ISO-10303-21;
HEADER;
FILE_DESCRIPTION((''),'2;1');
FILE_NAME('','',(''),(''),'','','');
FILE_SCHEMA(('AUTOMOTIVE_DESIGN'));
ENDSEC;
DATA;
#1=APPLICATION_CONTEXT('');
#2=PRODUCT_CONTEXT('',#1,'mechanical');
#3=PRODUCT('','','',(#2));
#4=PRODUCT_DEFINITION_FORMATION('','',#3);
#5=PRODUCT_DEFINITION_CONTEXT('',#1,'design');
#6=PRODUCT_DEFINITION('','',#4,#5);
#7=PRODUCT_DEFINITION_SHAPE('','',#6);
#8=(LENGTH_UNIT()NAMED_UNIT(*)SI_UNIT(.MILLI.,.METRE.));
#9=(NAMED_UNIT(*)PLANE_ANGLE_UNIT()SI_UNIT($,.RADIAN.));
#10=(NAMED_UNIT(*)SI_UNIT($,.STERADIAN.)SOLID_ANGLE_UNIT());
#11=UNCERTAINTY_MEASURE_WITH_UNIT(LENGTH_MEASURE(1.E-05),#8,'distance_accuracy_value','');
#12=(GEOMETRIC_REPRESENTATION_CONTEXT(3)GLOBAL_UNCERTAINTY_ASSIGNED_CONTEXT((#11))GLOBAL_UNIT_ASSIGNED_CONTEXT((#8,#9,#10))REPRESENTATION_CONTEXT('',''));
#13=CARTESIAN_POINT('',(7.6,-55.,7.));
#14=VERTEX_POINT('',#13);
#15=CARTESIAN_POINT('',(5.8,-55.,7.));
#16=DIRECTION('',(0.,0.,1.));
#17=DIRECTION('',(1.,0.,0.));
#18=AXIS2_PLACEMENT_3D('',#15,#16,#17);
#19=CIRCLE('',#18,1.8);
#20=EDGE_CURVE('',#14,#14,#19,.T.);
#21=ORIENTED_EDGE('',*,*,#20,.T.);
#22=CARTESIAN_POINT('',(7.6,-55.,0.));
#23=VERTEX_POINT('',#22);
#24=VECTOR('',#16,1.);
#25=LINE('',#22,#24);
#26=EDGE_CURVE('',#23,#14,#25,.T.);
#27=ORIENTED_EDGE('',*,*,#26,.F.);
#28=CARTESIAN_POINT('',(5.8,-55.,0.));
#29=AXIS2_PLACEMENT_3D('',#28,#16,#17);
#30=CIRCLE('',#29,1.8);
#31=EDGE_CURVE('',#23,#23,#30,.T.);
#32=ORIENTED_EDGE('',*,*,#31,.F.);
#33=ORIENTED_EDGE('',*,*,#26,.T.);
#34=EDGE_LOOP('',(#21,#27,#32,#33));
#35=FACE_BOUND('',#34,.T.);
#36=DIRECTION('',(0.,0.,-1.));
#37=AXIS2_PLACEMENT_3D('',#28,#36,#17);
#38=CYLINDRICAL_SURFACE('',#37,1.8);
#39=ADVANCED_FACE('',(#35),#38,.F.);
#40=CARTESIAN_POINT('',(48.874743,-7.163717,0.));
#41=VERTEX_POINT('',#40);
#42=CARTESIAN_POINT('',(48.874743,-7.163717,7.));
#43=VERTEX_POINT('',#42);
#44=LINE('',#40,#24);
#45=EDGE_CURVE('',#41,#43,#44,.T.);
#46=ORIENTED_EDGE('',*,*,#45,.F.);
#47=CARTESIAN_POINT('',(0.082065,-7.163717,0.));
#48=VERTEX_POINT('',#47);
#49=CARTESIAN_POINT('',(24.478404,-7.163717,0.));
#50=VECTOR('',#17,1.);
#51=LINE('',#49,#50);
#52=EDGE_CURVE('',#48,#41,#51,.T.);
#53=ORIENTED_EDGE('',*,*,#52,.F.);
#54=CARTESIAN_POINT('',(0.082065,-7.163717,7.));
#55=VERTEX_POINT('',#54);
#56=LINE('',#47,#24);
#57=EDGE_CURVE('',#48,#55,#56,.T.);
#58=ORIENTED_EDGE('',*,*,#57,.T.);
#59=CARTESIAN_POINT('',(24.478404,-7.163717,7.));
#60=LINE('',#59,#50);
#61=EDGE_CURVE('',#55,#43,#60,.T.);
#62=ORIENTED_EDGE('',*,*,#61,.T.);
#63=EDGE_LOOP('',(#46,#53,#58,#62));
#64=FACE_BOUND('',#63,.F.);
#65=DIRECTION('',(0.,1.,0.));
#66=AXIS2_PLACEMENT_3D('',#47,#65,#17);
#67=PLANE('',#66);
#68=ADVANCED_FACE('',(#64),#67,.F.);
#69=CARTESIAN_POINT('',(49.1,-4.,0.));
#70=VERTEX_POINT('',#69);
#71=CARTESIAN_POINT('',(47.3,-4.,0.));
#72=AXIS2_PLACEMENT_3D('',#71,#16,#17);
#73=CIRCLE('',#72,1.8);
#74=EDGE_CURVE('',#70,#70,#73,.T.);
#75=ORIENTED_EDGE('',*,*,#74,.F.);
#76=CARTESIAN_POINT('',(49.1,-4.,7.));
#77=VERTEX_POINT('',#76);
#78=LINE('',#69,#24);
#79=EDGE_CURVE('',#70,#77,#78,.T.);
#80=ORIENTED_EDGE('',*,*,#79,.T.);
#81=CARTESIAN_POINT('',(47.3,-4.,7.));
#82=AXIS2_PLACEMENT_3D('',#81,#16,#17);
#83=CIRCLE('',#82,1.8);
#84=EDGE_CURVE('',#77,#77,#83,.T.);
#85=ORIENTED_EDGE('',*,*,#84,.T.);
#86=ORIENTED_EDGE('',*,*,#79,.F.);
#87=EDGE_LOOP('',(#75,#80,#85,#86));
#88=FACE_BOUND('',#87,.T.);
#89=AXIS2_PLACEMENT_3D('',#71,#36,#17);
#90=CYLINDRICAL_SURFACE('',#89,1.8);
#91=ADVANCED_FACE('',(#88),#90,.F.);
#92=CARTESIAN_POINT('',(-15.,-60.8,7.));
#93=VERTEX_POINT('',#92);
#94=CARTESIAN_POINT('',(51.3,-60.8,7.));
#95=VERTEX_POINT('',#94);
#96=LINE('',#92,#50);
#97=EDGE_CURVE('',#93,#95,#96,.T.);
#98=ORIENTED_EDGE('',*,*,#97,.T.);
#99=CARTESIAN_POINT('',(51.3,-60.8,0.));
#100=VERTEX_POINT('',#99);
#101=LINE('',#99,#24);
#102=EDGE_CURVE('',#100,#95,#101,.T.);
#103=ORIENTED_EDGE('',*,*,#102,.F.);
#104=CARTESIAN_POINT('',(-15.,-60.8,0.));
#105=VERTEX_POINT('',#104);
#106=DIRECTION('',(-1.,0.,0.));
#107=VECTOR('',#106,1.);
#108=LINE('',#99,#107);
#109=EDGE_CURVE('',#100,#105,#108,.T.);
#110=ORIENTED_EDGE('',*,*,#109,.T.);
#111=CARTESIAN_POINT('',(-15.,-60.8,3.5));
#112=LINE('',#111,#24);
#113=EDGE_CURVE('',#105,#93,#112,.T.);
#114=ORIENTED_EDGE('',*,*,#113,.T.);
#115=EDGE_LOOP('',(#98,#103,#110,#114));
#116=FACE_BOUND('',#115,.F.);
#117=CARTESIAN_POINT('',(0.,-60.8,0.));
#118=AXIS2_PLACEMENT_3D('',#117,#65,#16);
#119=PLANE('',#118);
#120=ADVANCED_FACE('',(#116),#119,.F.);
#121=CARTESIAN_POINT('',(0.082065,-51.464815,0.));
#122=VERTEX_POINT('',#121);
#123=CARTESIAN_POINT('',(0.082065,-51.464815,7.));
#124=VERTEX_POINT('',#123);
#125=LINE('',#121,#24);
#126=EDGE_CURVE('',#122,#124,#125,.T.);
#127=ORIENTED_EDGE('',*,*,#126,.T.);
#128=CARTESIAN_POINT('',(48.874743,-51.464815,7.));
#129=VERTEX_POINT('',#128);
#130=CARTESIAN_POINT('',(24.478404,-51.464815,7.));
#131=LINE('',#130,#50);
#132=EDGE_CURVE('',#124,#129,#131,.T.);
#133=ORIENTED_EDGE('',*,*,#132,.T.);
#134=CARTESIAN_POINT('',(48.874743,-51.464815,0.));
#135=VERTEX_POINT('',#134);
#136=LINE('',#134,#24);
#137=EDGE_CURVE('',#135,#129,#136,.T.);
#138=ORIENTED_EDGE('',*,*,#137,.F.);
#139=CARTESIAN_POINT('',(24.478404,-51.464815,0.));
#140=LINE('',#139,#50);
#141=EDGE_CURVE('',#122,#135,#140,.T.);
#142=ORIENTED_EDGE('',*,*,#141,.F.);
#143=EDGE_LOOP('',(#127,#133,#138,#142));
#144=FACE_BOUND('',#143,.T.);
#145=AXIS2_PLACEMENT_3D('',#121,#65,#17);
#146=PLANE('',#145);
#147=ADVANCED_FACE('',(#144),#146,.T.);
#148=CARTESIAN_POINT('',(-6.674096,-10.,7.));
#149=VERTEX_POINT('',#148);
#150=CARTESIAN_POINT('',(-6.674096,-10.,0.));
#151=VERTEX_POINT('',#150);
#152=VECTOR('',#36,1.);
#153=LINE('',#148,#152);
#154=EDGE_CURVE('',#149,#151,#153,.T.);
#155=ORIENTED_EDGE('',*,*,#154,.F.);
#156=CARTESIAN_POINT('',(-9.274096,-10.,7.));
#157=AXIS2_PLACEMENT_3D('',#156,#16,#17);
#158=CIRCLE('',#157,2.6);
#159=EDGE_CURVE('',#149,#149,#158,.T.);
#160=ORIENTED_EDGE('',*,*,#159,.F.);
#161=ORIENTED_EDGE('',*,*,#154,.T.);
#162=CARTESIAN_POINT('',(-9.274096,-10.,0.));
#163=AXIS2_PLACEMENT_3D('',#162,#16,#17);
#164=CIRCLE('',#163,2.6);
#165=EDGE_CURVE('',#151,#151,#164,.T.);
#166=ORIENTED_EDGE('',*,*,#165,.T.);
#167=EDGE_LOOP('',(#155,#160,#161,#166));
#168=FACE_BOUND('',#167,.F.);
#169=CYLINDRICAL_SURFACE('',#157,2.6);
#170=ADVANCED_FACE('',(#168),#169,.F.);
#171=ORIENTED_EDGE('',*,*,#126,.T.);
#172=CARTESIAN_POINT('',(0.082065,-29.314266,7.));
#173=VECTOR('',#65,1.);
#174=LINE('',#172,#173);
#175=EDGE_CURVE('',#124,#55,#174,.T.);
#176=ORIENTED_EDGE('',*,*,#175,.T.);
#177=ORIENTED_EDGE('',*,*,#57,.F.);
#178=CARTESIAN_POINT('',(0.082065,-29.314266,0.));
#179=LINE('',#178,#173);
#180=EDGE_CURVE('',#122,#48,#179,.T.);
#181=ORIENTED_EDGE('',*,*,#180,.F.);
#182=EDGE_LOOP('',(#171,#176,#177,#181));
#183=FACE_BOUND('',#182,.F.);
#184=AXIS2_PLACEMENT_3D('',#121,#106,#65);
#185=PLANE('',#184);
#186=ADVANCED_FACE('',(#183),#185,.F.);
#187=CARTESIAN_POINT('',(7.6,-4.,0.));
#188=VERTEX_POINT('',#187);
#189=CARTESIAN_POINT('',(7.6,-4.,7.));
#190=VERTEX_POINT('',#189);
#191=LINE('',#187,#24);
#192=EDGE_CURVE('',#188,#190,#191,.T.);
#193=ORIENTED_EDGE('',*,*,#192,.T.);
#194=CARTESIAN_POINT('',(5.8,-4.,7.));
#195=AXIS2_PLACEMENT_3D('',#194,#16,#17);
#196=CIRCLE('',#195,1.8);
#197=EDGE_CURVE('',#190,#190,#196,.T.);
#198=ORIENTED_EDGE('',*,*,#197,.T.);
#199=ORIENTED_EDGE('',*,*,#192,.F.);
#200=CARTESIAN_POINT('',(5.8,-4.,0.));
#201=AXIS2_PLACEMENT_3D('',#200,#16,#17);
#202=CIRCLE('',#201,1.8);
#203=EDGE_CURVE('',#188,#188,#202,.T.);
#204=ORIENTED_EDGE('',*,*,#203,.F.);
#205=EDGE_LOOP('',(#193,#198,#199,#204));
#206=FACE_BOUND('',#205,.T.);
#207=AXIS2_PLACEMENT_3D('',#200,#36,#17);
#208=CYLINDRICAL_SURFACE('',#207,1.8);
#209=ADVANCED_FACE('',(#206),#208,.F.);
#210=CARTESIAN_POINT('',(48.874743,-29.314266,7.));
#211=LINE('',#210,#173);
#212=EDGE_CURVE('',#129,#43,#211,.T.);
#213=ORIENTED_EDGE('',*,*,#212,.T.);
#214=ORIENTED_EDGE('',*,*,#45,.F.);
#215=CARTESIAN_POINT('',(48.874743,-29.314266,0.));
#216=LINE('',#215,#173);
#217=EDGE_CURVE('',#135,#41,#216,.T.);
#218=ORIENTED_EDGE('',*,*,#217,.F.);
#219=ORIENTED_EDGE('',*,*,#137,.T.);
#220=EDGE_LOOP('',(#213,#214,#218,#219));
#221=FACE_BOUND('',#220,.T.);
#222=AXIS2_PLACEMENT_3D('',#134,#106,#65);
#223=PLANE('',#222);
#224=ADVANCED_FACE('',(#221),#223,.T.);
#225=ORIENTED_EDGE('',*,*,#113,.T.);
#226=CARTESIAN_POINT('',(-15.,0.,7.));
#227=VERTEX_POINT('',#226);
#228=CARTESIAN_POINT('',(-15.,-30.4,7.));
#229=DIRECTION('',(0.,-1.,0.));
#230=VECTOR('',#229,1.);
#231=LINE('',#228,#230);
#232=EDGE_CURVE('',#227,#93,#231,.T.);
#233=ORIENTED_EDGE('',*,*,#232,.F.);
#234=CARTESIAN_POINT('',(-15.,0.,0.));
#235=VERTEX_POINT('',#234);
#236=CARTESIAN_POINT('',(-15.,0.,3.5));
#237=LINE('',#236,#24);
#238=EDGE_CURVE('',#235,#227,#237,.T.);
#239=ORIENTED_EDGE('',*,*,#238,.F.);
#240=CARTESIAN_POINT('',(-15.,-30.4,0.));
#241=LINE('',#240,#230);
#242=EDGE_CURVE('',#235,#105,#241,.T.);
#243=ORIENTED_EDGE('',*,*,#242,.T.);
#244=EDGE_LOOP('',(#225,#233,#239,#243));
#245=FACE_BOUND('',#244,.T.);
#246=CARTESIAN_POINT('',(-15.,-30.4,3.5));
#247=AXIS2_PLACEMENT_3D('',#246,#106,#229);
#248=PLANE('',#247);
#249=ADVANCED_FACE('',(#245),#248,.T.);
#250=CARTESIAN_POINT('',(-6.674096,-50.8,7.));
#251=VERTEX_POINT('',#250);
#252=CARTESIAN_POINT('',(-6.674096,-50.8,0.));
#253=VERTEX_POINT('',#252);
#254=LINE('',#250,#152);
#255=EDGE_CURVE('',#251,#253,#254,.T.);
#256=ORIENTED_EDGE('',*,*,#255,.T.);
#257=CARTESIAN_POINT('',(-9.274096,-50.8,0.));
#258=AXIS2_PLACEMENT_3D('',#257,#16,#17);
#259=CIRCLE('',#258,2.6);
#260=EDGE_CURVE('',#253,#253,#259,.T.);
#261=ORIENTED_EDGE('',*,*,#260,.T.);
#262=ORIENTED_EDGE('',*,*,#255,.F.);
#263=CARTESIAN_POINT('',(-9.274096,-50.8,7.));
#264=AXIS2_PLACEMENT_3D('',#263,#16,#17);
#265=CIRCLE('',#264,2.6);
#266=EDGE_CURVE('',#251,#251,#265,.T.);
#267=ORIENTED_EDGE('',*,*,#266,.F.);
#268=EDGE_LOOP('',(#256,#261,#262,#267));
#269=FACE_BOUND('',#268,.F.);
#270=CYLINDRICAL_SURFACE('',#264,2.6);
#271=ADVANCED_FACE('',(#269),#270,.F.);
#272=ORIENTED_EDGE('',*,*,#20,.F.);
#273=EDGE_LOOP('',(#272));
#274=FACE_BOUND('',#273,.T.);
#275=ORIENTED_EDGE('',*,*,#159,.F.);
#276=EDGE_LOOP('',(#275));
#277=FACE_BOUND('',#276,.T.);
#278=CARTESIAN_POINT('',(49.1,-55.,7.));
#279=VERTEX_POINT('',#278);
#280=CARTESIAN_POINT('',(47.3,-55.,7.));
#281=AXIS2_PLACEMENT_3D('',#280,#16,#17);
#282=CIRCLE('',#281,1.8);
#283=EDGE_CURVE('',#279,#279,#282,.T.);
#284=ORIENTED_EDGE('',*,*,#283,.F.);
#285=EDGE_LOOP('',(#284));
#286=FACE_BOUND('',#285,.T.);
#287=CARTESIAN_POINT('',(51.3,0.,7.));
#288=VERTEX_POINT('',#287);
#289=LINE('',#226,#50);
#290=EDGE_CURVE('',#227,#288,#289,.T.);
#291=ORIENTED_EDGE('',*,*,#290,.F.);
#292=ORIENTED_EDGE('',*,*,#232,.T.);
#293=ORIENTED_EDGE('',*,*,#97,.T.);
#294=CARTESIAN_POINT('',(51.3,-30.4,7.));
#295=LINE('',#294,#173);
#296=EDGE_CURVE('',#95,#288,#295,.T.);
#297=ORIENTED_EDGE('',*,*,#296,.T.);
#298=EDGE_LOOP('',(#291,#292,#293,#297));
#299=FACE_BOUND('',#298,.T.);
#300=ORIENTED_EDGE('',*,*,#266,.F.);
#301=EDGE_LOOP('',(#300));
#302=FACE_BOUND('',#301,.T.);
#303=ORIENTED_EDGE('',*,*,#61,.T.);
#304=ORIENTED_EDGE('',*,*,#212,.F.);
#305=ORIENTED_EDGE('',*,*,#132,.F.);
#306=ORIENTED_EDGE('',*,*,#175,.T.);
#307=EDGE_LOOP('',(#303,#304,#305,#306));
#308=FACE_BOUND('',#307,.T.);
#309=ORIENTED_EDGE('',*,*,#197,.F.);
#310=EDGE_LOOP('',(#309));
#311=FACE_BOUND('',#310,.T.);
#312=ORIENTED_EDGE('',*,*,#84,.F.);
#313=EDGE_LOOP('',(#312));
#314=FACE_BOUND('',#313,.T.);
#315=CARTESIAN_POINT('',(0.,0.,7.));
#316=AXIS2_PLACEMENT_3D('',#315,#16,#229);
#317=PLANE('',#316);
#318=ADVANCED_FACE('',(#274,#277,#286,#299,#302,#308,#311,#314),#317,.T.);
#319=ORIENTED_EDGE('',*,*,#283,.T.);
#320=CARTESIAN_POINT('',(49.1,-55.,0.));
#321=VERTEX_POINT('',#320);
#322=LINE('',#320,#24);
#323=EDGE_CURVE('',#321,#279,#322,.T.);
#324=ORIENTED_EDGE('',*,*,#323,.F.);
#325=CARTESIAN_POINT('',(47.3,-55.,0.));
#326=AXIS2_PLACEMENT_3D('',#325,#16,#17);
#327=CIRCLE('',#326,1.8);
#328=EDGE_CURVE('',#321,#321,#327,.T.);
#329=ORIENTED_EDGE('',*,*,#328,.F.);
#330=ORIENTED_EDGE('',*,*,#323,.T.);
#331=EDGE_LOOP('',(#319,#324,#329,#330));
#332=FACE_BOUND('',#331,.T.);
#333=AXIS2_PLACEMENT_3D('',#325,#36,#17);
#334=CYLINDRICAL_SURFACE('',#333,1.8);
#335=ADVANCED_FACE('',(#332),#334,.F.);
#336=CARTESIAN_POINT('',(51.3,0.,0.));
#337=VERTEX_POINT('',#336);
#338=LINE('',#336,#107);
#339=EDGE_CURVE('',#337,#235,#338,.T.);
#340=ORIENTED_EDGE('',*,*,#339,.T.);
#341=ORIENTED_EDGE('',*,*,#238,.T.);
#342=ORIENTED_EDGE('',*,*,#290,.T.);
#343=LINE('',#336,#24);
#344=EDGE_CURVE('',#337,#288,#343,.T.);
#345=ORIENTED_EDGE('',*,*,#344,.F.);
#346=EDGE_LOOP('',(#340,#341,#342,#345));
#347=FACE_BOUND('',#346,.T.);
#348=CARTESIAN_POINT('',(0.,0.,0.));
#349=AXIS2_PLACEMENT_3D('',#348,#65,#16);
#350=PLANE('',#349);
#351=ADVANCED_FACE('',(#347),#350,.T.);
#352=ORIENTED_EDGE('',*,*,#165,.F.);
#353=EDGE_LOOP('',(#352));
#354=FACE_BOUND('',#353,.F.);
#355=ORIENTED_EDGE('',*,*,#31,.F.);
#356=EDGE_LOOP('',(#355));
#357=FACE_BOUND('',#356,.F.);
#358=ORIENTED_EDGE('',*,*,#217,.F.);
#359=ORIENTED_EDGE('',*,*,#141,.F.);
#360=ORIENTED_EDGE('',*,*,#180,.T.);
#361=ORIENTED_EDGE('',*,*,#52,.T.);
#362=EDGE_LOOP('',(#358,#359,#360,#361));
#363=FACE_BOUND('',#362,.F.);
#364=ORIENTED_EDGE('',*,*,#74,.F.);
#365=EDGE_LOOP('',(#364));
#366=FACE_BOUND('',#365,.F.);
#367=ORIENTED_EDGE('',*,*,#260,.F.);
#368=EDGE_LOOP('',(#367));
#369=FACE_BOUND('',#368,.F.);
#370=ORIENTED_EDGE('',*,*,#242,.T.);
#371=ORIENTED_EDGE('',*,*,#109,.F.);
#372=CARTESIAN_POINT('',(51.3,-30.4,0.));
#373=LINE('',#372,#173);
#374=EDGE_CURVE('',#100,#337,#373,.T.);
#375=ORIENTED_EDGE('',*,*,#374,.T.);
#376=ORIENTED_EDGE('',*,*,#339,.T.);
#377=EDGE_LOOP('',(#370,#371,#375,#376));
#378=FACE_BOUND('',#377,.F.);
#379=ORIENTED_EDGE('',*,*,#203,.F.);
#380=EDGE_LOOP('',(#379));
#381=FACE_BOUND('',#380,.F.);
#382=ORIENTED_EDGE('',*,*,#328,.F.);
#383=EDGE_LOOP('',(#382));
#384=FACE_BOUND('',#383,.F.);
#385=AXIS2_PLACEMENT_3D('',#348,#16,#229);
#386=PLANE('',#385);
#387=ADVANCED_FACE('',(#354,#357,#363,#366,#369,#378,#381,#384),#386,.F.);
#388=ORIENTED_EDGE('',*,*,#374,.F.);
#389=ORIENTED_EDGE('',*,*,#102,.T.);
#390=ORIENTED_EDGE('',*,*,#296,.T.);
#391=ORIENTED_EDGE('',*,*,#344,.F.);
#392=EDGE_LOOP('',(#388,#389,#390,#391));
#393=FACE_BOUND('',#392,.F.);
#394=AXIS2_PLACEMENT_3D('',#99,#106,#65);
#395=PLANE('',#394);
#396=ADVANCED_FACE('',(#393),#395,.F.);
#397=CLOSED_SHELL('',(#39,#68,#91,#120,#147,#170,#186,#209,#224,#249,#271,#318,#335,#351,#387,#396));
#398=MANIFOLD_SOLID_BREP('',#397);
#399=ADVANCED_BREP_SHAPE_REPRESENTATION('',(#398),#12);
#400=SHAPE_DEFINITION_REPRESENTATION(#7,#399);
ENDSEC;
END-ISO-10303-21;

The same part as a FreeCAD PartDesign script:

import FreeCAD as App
import Part
import Sketcher


def add_polygon(sketch, points):
    """Adds a closed chain of lines whose ends are joined by coincident constraints."""
    first, n = sketch.GeometryCount, len(points)
    for a, b in zip(points, points[1:] + points[:1]):
        sketch.addGeometry(Part.LineSegment(App.Vector(*a, 0), App.Vector(*b, 0)), False)
    for i in range(n):
        sketch.addConstraint(Sketcher.Constraint("Coincident", first + i, 2, first + (i + 1) % n, 1))

doc = App.newDocument("Part")
params = doc.addObject("Spreadsheet::Sheet", "Params")
for row, (alias, value) in enumerate([
    ("sketch1_diameter", "3.6 mm"),
    ("sketch1_width", "51.3 mm"),
    ("sketch1_height", "60.8 mm"),
    ("pad1_length", "7 mm"),
    ("sketch2_height", "7 mm"),
    ("sketch2_width", "60.8 mm"),
    ("pad2_length", "15 mm"),
    ("sketch3_diameter", "5.2 mm"),
    ("pocket1_length", "25 mm"),
], start=1):
    params.set(f"A{row}", alias)
    params.set(f"B{row}", "=" + value)
    params.setAlias(f"B{row}", alias)

body = doc.addObject("PartDesign::Body", "Body")

sketch1 = body.newObject("Sketcher::SketchObject", "Sketch")
sketch1.AttachmentSupport = (doc.getObject("XY_Plane"), [""])
sketch1.MapMode = "FlatFace"
add_polygon(sketch1, [(0, 0), (0, -60.8), (51.3, -60.8), (51.3, 0)])
sketch1.addGeometry(Part.Circle(App.Vector(5.8, -55, 0), App.Vector(0, 0, 1), 1.8), False)
sketch1.addGeometry(Part.Circle(App.Vector(47.3, -55, 0), App.Vector(0, 0, 1), 1.8), False)
add_polygon(sketch1, [(48.9, -51.5), (0.1, -51.5), (0.1, -7.2), (48.9, -7.2)])
sketch1.addGeometry(Part.Circle(App.Vector(5.8, -4, 0), App.Vector(0, 0, 1), 1.8), False)
sketch1.addGeometry(Part.Circle(App.Vector(47.3, -4, 0), App.Vector(0, 0, 1), 1.8), False)
sketch1.addConstraint([
    Sketcher.Constraint("Vertical", 0),
    Sketcher.Constraint("Horizontal", 1),
    Sketcher.Constraint("Vertical", 2),
    Sketcher.Constraint("Horizontal", 3),
    Sketcher.Constraint("Horizontal", 6),
    Sketcher.Constraint("Vertical", 7),
    Sketcher.Constraint("Horizontal", 8),
    Sketcher.Constraint("Vertical", 9),
    Sketcher.Constraint("Coincident", 3, 2, -1, 1),
    Sketcher.Constraint("Equal", 4, 5),
    Sketcher.Constraint("Equal", 5, 10),
    Sketcher.Constraint("Equal", 10, 11),
    Sketcher.Constraint("Horizontal", 4, 3, 5, 3),
    Sketcher.Constraint("Horizontal", 10, 3, 11, 3),
    Sketcher.Constraint("Vertical", 4, 3, 10, 3),
    Sketcher.Constraint("Vertical", 5, 3, 11, 3),
    Sketcher.Constraint("Diameter", 4, 3.6),
    Sketcher.Constraint("DistanceX", 1, 1, 1, 2, 51.3),
    Sketcher.Constraint("DistanceY", 0, 2, 0, 1, 60.8),
    Sketcher.Constraint("DistanceY", 4, 3, -1, 1, 55.0),
    Sketcher.Constraint("DistanceY", 10, 3, -1, 1, 4.0),
    Sketcher.Constraint("DistanceX", 5, 3, 1, 2, 4.0),
    Sketcher.Constraint("DistanceX", -1, 1, 4, 3, 5.8),
    Sketcher.Constraint("DistanceY", 7, 1, 7, 2, 44.301098),
    Sketcher.Constraint("DistanceX", 6, 2, 6, 1, 48.792678),
    Sketcher.Constraint("DistanceX", -1, 1, 6, 2, 0.082065),
    Sketcher.Constraint("DistanceY", 6, 2, -1, 1, 51.464815),
])
sketch1.setExpression("Constraints[24]", "Params.sketch1_diameter")
sketch1.setExpression("Constraints[25]", "Params.sketch1_width")
sketch1.setExpression("Constraints[26]", "Params.sketch1_height")
pad1 = body.newObject("PartDesign::Pad", "Pad")
pad1.Profile = sketch1
pad1.setExpression("Length", "Params.pad1_length")

sketch2 = body.newObject("Sketcher::SketchObject", "Sketch001")
sketch2.AttachmentSupport = (doc.getObject("YZ_Plane"), [""])
sketch2.MapMode = "FlatFace"
add_polygon(sketch2, [(0, 7), (0, 0), (-61, 0), (-61, 7)])
sketch2.addConstraint([
    Sketcher.Constraint("Vertical", 0),
    Sketcher.Constraint("Horizontal", 1),
    Sketcher.Constraint("Vertical", 2),
    Sketcher.Constraint("Horizontal", 3),
    Sketcher.Constraint("Coincident", 0, 2, -1, 1),
    Sketcher.Constraint("DistanceY", 0, 2, 0, 1, 7.0),
    Sketcher.Constraint("DistanceX", 1, 2, 1, 1, 60.8),
])
sketch2.setExpression("Constraints[9]", "Params.sketch2_height")
sketch2.setExpression("Constraints[10]", "Params.sketch2_width")
pad2 = body.newObject("PartDesign::Pad", "Pad001")
pad2.Profile = sketch2
pad2.setExpression("Length", "Params.pad2_length")
pad2.Reversed = True

sketch3 = body.newObject("Sketcher::SketchObject", "Sketch002")
sketch3.AttachmentSupport = (doc.getObject("XY_Plane"), [""])
sketch3.MapMode = "FlatFace"
sketch3.AttachmentOffset = App.Placement(App.Vector(0, 0, 7), App.Rotation())
sketch3.addGeometry([
    Part.Circle(App.Vector(-9.3, -10, 0), App.Vector(0, 0, 1), 2.6),
    Part.Circle(App.Vector(-9.3, -50.8, 0), App.Vector(0, 0, 1), 2.6),
], False)
sketch3.addConstraint([
    Sketcher.Constraint("Equal", 0, 1),
    Sketcher.Constraint("Vertical", 0, 3, 1, 3),
    Sketcher.Constraint("Diameter", 0, 5.2),
    Sketcher.Constraint("DistanceY", 0, 3, -1, 1, 10.0),
    Sketcher.Constraint("DistanceY", 1, 3, -1, 1, 50.8),
    Sketcher.Constraint("DistanceX", 0, 3, -1, 1, 9.274096),
])
sketch3.setExpression("Constraints[2]", "Params.sketch3_diameter")
pocket1 = body.newObject("PartDesign::Pocket", "Pocket")
pocket1.Profile = sketch3
pocket1.setExpression("Length", "Params.pocket1_length")

doc.recompute()
